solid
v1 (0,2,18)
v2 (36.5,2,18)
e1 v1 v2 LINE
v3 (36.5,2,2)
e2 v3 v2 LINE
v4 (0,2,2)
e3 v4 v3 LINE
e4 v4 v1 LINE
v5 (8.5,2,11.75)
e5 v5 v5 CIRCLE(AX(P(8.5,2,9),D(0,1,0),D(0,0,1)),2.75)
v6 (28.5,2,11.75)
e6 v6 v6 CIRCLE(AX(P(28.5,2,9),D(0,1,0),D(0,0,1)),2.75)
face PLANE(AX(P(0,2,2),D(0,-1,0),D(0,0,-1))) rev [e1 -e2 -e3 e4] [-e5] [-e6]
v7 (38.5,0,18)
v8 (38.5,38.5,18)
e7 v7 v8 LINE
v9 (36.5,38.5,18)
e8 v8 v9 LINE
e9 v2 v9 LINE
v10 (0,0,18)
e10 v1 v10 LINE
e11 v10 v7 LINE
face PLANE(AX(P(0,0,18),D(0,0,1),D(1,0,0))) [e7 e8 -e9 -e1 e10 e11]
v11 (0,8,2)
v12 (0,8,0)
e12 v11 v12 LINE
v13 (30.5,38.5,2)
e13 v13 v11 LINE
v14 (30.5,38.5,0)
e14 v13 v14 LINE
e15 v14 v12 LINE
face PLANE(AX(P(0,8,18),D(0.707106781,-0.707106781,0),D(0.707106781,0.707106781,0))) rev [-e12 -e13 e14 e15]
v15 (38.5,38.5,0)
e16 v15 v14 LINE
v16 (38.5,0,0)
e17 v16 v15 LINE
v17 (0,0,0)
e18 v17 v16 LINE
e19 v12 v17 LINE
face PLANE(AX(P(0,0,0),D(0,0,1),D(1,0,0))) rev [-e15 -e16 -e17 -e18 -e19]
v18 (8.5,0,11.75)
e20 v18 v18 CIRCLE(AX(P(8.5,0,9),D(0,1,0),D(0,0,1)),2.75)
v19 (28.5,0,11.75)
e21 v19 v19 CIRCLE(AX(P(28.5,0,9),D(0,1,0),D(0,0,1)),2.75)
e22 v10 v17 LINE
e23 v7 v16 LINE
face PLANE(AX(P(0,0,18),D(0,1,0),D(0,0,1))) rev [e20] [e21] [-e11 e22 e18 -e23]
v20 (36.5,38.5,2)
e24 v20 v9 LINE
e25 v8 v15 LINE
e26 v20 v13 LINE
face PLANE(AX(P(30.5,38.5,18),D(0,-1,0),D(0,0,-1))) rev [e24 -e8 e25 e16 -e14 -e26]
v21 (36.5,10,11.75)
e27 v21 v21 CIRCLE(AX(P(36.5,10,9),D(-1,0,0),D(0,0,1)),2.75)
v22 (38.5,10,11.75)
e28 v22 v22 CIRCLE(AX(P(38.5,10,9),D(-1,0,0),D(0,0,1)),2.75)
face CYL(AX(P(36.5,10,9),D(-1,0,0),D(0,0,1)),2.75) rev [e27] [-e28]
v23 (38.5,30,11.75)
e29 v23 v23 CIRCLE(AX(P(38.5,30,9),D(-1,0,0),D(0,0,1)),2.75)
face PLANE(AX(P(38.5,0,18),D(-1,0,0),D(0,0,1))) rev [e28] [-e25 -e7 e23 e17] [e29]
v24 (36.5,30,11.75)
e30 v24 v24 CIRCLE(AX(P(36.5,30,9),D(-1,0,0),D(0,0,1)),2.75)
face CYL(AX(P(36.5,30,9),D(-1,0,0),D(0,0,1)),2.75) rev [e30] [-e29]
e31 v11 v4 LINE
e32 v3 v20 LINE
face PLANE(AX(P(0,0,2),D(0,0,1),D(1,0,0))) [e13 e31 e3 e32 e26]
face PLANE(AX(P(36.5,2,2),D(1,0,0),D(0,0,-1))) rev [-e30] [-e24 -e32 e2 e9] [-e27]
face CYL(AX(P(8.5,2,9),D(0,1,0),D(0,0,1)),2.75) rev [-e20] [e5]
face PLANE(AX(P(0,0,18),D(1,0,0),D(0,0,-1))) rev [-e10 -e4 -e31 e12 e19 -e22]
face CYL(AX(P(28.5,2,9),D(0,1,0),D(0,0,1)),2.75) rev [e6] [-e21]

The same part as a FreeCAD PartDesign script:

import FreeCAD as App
import Part
import Sketcher

V = App.Vector


def add_polygon(sketch, points):
    """Adds a closed chain of lines whose ends are joined by coincident constraints."""
    first, n = sketch.GeometryCount, len(points)
    for a, b in zip(points, points[1:] + points[:1]):
        sketch.addGeometry(Part.LineSegment(App.Vector(*a, 0), App.Vector(*b, 0)), False)
    for i in range(n):
        sketch.addConstraint(Sketcher.Constraint("Coincident", first + i, 2, first + (i + 1) % n, 1))

doc = App.newDocument("Part")
body = doc.addObject("PartDesign::Body", "Body")

# Sketch on XY plane
sketch1 = body.newObject("Sketcher::SketchObject", "Sketch")
sketch1.AttachmentSupport = (doc.getObject("XY_Plane"), [""])
sketch1.MapMode = "FlatFace"
add_polygon(sketch1, [(0, 8), (0, 0), (38, 0), (38, 38), (30, 38)])  # lines 0-4
sketch1.addConstraint([
    Sketcher.Constraint("Vertical", 0),
    Sketcher.Constraint("Horizontal", 1),
    Sketcher.Constraint("Vertical", 2),
    Sketcher.Constraint("Horizontal", 3),
    Sketcher.Constraint("Coincident", 0, 2, -1, 1),
    Sketcher.Constraint("Equal", 3, 0),
    Sketcher.Constraint("Equal", 1, 2),
    Sketcher.Constraint("DistanceX", 3, 2, 3, 1, 8.0),
    Sketcher.Constraint("DistanceX", 1, 1, 1, 2, 38.5),
])
pad1 = body.newObject("PartDesign::Pad", "Pad")
pad1.Profile = sketch1
pad1.Length = 18

# Sketch on XY plane
sketch2 = body.newObject("Sketcher::SketchObject", "Sketch001")
sketch2.AttachmentSupport = (doc.getObject("XY_Plane"), [""])
sketch2.MapMode = "FlatFace"
sketch2.AttachmentOffset = App.Placement(V(0, 0, 18), App.Rotation())
add_polygon(sketch2, [(0, 2), (36, 2), (36, 38), (30, 38), (0, 8)])  # lines 0-4
sketch2.addConstraint([
    Sketcher.Constraint("Horizontal", 0),
    Sketcher.Constraint("Vertical", 1),
    Sketcher.Constraint("Horizontal", 2),
    Sketcher.Constraint("Vertical", 4),
    Sketcher.Constraint("PointOnObject", 3, 2, -2),
    Sketcher.Constraint("Equal", 0, 1),
    Sketcher.Constraint("Equal", 2, 4),
    Sketcher.Constraint("DistanceX", 2, 2, 2, 1, 6.0),
    Sketcher.Constraint("DistanceX", 0, 1, 0, 2, 36.5),
    Sketcher.Constraint("DistanceY", -1, 1, 0, 2, 2.0),
])
pocket1 = body.newObject("PartDesign::Pocket", "Pocket")
pocket1.Profile = sketch2
pocket1.Length = 16

# Sketch on XZ plane
sketch3 = body.newObject("Sketcher::SketchObject", "Sketch002")
sketch3.AttachmentSupport = (doc.getObject("XZ_Plane"), [""])
sketch3.MapMode = "FlatFace"
sketch3.AttachmentOffset = App.Placement(V(0, 0, -2), App.Rotation())
sketch3.addGeometry([
    Part.Circle(V(8.5, 9, 0), V(0, 0, 1), 2.8),
    Part.Circle(V(28.5, 9, 0), V(0, 0, 1), 2.8),
], False)
sketch3.addConstraint([
    Sketcher.Constraint("Equal", 0, 1),
    Sketcher.Constraint("Horizontal", 0, 3, 1, 3),
    Sketcher.Constraint("Diameter", 0, 5.5),
    Sketcher.Constraint("DistanceY", -1, 1, 0, 3, 9.0),
    Sketcher.Constraint("DistanceX", 0, 3, 1, 3, 20.0),
    Sketcher.Constraint("DistanceX", -1, 1, 0, 3, 8.5),
])
doc.recompute()
hole = body.newObject("PartDesign::Hole", "Hole")
hole.Profile = sketch3
hole.ThreadType = "None"
hole.Diameter = 5.5
hole.DepthType = "ThroughAll"
hole.Reversed = True

# Sketch on YZ plane
sketch4 = body.newObject("Sketcher::SketchObject", "Sketch003")
sketch4.AttachmentSupport = (doc.getObject("YZ_Plane"), [""])
sketch4.MapMode = "FlatFace"
sketch4.AttachmentOffset = App.Placement(V(0, 0, 36.5), App.Rotation())
sketch4.addGeometry([
    Part.Circle(V(10, 9, 0), V(0, 0, 1), 2.8),
    Part.Circle(V(30, 9, 0), V(0, 0, 1), 2.8),
], False)
sketch4.addConstraint([
    Sketcher.Constraint("Equal", 0, 1),
    Sketcher.Constraint("Horizontal", 0, 3, 1, 3),
    Sketcher.Constraint("Diameter", 0, 5.5),
    Sketcher.Constraint("DistanceX", -1, 1, 0, 3, 10.0),
    Sketcher.Constraint("DistanceY", -1, 1, 0, 3, 9.0),
    Sketcher.Constraint("DistanceX", -1, 1, 1, 3, 30.0),
])
doc.recompute()
hole2 = body.newObject("PartDesign::Hole", "Hole001")
hole2.Profile = sketch4
hole2.ThreadType = "None"
hole2.Diameter = 5.5
hole2.DepthType = "ThroughAll"
hole2.Reversed = True

doc.recompute()
